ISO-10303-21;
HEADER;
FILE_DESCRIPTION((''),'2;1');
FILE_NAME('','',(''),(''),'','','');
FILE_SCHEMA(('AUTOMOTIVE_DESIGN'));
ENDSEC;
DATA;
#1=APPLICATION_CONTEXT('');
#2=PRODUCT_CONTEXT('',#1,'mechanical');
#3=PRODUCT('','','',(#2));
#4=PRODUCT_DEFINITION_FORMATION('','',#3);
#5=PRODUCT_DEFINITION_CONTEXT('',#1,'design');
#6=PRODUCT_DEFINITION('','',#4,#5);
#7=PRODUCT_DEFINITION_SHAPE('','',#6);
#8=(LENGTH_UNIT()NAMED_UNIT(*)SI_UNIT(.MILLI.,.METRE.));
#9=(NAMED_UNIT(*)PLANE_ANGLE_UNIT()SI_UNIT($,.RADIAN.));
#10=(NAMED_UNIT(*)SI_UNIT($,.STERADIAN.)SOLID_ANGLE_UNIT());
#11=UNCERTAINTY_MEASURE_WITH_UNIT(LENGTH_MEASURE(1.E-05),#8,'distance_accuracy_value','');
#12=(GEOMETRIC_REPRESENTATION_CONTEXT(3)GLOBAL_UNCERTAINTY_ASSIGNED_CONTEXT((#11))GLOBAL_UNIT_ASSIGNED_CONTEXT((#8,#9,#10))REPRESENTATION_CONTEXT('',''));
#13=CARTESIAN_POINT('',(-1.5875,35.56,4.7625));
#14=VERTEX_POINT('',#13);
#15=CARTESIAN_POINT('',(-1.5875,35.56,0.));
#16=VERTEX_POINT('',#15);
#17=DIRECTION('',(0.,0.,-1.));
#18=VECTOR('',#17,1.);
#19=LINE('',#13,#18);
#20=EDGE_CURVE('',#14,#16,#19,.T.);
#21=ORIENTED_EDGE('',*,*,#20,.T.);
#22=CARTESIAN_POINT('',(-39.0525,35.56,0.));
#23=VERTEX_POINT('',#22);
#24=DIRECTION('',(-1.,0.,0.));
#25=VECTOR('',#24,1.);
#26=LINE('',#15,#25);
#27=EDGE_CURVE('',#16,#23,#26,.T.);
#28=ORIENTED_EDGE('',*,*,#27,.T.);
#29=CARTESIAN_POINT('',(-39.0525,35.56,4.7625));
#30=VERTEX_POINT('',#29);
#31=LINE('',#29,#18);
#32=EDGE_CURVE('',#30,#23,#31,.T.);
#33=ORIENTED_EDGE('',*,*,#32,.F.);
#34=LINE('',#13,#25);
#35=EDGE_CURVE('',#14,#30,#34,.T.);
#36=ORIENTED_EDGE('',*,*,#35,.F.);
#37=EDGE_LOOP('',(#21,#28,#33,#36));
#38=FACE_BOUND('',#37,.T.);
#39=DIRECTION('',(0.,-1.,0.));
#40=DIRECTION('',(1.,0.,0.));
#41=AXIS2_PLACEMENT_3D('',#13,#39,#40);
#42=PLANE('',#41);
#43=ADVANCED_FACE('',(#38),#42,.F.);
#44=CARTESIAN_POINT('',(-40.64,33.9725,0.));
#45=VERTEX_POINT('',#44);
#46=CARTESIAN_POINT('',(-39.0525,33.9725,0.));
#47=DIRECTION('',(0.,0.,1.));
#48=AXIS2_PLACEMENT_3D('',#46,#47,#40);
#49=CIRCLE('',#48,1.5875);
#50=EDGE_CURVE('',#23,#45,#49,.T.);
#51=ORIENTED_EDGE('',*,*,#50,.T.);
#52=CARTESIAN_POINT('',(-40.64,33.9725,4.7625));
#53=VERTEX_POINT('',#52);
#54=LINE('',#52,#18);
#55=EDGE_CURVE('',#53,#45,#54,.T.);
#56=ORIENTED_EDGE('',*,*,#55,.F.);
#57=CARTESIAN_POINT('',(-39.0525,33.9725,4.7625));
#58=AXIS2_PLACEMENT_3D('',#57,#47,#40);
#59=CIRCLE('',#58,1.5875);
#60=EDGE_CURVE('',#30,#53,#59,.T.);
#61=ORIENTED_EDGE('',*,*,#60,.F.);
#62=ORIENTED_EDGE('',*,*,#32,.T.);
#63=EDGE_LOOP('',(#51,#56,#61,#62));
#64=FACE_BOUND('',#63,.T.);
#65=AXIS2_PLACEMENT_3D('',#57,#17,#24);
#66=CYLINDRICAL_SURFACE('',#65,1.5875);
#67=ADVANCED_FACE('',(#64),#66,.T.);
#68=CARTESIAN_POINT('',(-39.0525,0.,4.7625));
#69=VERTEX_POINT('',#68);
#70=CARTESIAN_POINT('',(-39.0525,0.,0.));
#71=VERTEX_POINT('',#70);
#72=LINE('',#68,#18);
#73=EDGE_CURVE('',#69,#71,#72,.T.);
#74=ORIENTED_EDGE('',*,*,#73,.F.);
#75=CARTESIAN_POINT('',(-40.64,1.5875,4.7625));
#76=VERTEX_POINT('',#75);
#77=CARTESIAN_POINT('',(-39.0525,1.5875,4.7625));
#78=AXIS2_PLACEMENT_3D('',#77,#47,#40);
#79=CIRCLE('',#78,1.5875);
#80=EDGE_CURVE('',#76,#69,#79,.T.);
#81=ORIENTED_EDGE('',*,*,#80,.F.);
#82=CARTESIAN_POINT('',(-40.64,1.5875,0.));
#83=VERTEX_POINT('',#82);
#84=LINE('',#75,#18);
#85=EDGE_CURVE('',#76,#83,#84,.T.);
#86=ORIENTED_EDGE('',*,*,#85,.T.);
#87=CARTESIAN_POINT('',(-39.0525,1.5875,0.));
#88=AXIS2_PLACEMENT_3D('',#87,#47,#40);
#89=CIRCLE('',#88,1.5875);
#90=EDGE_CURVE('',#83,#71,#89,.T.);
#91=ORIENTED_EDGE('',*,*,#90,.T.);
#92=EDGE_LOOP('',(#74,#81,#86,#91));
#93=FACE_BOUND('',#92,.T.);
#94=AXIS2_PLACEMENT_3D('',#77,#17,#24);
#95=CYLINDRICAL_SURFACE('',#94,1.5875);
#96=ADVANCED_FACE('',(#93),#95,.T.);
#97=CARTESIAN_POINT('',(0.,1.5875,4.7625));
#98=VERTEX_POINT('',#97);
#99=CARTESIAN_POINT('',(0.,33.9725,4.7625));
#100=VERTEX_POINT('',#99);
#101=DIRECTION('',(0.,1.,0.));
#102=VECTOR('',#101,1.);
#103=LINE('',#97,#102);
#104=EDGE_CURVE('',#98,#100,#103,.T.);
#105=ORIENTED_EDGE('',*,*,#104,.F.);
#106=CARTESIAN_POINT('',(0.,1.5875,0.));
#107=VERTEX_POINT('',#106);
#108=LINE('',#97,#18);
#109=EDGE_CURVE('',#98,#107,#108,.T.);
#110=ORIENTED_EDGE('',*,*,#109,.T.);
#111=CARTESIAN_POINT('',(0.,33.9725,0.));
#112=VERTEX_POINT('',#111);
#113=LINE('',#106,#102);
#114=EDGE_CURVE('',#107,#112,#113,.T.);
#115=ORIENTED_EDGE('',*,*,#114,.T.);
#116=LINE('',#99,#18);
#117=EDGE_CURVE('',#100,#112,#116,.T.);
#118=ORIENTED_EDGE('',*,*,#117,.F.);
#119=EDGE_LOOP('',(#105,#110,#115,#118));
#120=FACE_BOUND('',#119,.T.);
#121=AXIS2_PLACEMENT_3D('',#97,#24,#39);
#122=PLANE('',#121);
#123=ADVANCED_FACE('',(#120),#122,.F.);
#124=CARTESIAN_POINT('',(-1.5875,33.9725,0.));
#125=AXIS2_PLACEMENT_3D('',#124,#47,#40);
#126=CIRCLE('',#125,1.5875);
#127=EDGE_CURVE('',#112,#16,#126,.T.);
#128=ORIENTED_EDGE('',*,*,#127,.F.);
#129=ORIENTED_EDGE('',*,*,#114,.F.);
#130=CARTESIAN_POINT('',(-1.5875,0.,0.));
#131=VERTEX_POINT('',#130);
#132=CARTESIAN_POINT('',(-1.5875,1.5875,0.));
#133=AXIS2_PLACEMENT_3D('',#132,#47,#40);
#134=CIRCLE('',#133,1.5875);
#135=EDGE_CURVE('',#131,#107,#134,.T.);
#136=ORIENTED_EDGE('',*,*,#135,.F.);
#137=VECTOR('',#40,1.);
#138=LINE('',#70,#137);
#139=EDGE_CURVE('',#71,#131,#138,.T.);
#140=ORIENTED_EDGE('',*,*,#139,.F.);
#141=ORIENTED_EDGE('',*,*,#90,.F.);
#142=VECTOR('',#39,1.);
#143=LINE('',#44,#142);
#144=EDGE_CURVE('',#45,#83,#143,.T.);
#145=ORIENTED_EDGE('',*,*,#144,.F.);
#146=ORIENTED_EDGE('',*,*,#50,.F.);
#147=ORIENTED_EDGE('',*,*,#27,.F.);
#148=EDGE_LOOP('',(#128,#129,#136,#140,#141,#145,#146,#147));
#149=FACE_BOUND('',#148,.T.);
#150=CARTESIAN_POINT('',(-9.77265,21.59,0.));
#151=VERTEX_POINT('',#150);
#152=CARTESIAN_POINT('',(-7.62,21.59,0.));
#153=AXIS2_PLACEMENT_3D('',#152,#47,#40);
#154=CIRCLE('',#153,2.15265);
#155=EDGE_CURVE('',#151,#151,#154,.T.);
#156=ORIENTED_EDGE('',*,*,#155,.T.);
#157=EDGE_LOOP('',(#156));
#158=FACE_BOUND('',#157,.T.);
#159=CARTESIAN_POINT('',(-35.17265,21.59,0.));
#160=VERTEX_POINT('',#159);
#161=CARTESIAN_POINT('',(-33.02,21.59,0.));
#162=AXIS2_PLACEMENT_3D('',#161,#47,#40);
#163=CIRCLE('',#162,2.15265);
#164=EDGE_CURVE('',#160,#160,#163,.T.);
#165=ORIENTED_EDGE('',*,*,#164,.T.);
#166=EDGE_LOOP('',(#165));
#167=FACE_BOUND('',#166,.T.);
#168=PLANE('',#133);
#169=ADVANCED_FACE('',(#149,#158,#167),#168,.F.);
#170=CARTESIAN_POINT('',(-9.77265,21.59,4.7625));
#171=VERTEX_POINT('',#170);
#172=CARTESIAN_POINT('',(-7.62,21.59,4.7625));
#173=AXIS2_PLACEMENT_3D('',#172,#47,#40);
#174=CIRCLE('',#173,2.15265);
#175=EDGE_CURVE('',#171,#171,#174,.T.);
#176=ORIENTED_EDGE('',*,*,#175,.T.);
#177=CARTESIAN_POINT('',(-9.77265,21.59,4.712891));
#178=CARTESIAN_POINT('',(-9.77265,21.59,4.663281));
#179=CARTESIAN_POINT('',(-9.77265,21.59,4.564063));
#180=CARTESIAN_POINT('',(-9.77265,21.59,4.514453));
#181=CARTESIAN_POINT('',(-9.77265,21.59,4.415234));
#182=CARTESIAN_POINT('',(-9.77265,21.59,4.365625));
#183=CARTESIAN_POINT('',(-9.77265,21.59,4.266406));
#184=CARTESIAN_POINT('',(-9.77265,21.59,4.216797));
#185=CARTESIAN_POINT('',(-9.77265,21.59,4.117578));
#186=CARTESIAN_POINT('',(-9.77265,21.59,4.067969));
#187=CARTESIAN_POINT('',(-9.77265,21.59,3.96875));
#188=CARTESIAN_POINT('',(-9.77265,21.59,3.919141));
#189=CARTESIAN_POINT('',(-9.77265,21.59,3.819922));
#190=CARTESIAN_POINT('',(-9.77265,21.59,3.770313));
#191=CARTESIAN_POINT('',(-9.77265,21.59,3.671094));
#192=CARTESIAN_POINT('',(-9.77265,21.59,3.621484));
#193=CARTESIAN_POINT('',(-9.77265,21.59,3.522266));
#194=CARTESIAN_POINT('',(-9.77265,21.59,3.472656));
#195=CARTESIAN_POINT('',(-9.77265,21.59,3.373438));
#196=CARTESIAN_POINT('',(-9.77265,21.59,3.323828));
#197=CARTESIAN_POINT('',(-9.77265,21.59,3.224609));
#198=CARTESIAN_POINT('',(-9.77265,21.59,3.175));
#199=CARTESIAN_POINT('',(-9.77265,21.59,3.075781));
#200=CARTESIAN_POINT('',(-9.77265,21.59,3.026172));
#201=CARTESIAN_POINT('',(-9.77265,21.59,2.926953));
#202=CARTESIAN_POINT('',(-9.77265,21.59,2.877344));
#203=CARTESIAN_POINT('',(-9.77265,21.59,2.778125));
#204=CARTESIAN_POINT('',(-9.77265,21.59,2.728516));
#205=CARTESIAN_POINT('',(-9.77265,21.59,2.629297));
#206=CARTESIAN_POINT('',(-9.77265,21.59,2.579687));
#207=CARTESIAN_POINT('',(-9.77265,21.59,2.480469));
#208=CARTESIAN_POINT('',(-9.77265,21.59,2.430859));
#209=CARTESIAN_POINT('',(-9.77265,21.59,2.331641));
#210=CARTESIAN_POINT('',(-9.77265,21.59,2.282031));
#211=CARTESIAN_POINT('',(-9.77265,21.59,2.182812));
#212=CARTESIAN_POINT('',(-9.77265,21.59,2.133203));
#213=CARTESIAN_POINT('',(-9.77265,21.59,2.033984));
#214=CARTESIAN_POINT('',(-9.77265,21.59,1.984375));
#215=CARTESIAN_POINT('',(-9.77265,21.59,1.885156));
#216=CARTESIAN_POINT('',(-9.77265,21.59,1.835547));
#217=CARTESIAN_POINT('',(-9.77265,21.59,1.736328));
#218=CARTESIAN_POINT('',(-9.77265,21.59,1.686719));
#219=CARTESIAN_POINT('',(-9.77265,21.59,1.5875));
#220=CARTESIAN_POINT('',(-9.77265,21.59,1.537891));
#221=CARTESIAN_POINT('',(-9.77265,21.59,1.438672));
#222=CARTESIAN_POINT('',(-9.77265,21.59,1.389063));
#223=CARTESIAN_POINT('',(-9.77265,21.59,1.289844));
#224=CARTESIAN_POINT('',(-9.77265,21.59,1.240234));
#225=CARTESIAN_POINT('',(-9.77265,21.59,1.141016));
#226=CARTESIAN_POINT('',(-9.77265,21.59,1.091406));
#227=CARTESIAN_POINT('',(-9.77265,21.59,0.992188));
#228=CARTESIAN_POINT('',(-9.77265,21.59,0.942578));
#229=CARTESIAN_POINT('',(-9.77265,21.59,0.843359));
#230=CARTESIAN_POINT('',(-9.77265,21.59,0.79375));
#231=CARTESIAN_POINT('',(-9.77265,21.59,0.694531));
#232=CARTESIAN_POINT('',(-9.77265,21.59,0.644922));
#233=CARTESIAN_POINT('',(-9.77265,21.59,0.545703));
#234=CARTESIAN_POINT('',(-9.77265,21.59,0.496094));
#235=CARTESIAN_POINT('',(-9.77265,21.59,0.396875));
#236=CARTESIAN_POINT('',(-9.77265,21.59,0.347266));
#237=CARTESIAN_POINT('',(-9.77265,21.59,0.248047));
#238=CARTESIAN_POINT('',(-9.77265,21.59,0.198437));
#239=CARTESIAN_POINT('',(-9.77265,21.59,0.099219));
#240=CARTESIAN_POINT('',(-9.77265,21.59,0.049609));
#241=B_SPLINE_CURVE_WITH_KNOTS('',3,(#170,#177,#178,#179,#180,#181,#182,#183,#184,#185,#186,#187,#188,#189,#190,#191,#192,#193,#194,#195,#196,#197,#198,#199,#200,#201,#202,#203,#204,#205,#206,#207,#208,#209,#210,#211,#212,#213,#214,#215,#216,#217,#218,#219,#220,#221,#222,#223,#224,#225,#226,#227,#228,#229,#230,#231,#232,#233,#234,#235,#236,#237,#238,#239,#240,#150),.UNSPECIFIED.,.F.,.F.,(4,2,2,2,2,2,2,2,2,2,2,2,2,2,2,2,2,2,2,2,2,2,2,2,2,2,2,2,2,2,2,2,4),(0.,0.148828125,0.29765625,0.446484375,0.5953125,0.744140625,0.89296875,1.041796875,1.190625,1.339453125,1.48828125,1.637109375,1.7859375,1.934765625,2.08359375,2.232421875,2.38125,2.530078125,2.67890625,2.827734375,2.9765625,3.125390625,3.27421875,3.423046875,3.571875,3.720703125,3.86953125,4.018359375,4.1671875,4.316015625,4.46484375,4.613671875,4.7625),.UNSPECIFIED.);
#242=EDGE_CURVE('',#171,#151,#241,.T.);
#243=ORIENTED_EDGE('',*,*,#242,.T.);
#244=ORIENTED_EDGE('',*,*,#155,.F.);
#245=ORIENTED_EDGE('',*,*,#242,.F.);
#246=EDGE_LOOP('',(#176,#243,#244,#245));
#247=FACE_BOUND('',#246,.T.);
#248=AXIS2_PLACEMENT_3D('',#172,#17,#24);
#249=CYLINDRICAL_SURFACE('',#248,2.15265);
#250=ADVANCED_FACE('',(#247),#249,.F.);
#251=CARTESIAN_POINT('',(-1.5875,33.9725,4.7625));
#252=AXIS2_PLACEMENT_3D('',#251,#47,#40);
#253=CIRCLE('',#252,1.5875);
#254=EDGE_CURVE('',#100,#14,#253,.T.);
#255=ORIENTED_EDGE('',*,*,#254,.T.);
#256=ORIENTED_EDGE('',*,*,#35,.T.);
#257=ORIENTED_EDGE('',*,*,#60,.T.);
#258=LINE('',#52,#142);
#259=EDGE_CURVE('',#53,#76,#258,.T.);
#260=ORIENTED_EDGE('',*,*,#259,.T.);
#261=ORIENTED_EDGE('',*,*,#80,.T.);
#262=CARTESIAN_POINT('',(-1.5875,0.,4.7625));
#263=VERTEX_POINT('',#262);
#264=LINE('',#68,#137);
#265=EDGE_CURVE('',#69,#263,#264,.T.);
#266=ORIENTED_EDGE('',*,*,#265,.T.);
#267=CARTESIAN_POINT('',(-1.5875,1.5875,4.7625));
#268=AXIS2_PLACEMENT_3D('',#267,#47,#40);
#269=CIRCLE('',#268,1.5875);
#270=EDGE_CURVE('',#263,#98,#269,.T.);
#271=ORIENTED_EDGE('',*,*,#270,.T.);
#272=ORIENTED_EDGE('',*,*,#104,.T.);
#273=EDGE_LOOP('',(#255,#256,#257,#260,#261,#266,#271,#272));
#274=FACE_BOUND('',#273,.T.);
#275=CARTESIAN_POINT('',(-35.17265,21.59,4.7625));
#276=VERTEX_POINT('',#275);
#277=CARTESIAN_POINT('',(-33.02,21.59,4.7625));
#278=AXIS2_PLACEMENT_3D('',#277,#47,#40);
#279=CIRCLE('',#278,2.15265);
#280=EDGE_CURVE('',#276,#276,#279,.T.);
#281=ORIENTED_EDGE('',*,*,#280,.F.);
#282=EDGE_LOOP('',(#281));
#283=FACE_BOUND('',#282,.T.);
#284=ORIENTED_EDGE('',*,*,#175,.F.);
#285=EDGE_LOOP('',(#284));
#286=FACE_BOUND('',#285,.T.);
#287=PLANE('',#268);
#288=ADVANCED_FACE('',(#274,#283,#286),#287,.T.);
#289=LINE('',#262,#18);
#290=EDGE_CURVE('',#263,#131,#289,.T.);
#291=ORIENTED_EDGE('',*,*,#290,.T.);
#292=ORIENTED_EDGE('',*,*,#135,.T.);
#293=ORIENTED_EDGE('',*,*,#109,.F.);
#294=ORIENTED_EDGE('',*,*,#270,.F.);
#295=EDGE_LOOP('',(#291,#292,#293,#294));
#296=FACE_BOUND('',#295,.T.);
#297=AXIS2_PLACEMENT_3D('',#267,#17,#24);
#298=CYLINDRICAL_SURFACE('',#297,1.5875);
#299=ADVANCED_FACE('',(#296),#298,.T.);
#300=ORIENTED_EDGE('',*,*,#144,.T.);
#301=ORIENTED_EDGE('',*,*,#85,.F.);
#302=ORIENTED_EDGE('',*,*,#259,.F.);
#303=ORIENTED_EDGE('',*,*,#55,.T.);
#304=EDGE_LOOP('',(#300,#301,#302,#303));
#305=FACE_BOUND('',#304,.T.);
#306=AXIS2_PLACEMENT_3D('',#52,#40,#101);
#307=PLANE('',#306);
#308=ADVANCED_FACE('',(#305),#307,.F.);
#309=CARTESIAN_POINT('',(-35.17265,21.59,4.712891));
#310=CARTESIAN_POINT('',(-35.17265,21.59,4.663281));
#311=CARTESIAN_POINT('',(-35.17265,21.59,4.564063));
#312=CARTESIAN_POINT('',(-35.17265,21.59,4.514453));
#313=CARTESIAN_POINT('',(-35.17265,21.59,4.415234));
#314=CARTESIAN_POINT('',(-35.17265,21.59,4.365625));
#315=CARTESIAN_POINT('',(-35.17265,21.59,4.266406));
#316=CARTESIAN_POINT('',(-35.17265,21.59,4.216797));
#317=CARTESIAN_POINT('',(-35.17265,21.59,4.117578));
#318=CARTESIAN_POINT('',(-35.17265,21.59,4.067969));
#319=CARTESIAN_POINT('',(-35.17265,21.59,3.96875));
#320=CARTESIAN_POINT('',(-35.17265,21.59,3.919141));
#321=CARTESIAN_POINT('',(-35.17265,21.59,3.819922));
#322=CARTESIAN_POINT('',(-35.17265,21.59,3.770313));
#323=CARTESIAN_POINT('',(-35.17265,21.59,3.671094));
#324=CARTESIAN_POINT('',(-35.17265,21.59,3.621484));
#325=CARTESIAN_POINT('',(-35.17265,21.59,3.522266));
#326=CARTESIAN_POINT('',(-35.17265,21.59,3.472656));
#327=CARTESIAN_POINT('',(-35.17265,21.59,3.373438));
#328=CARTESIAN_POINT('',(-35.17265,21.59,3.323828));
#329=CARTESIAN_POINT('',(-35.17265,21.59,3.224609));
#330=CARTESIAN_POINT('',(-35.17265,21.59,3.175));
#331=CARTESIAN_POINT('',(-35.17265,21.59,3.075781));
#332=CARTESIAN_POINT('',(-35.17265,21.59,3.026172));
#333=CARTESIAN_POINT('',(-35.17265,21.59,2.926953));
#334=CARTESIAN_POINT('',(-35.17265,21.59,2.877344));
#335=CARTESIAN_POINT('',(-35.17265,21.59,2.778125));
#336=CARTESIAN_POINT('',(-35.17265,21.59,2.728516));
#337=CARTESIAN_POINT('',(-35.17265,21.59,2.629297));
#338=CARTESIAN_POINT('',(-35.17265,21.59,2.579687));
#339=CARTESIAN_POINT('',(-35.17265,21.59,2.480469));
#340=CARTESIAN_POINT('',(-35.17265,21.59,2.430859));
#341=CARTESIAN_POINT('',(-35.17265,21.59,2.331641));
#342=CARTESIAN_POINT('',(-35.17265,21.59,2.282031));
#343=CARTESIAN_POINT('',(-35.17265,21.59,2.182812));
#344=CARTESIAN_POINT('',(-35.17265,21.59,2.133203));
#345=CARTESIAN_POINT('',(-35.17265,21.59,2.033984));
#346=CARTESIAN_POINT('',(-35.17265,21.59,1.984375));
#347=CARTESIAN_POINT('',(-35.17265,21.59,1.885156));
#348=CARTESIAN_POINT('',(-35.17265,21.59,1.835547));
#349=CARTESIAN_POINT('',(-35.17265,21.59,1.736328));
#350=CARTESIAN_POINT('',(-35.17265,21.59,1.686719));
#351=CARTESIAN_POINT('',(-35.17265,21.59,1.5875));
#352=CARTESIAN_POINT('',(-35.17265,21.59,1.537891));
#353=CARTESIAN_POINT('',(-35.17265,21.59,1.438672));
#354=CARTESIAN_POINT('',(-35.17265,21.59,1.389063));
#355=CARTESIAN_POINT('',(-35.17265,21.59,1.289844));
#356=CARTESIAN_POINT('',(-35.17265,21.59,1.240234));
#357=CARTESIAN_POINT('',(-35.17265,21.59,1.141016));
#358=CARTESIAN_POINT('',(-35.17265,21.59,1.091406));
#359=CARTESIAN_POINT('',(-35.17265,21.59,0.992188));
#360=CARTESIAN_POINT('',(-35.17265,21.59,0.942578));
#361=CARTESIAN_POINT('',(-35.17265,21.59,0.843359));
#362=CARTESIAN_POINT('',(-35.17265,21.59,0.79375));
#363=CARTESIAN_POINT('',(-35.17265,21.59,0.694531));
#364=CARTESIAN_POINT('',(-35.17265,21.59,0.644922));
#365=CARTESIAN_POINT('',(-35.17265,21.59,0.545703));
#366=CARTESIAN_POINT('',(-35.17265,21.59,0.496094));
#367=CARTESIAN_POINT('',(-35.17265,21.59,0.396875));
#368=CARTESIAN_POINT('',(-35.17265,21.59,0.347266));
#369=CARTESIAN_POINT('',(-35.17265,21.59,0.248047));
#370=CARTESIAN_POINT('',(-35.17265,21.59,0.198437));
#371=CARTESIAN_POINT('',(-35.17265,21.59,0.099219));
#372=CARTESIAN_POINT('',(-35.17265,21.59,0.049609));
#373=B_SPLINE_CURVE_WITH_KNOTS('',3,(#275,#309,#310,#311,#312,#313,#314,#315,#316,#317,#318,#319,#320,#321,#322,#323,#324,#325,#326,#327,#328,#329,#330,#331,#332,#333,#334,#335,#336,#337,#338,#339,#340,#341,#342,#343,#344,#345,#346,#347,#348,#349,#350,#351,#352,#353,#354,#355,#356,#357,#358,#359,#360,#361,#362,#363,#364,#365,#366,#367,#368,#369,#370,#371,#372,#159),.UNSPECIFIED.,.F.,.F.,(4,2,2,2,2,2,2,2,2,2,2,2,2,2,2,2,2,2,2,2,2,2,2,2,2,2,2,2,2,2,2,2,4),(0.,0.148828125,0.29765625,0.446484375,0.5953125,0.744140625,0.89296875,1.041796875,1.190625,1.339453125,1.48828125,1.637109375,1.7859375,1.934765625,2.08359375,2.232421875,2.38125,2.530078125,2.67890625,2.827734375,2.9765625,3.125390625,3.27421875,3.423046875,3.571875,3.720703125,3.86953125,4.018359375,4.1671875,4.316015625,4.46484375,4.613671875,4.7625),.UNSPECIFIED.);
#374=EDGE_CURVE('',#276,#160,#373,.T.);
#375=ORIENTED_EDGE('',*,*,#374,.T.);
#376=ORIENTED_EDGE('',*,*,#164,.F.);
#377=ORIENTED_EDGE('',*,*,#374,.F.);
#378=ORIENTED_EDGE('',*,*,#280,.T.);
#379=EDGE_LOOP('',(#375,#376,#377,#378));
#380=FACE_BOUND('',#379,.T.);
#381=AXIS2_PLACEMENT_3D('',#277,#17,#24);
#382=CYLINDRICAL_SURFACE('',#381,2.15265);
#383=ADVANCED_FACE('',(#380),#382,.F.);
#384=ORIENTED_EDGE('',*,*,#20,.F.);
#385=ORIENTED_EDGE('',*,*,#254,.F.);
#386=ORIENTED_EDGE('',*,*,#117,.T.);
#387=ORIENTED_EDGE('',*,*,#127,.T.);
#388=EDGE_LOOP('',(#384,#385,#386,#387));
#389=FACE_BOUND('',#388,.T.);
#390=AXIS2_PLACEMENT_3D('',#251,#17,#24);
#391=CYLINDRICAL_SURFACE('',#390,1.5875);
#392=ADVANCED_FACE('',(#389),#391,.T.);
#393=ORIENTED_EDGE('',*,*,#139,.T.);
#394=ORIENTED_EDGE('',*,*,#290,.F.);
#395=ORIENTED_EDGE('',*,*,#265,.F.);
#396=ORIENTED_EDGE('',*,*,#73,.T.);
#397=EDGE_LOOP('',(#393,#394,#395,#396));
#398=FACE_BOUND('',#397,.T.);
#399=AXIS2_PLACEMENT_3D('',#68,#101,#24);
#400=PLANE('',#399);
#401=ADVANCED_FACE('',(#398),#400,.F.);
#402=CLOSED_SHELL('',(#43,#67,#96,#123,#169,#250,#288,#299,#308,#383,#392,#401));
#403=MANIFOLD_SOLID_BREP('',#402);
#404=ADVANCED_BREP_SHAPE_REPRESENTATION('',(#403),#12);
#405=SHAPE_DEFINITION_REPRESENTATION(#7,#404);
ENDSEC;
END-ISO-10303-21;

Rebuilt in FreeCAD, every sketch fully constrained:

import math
import FreeCAD as App
import Part
import Sketcher
from FreeCAD import Vector
Q = App.Units.Quantity

doc = App.newDocument("Part")
params = doc.addObject("Spreadsheet::Sheet", "Params")
for row, (alias, value) in enumerate([
    ("sketch1_radius", "0.0625 in"),
    ("pad1_length", "0.1875 in"),
], start=1):
    params.set(f"A{row}", alias)
    params.set(f"B{row}", "=" + value)
    params.setAlias(f"B{row}", alias)

body = doc.addObject("PartDesign::Body", "Body")

# Sketch on XY plane
sketch1 = body.newObject("Sketcher::SketchObject", "Sketch")
sketch1.AttachmentSupport = (doc.getObject("XY_Plane"), [""])
sketch1.MapMode = "FlatFace"
sketch1.addGeometry([
    Part.LineSegment(Vector(0, 1.6, 0), Vector(0, 34, 0)),  # 0
    Part.ArcOfCircle(Part.Circle(Vector(-1.6, 34, 0), Vector(0, 0, 1), 1.6), math.radians(0), math.radians(90)),  # 1
    Part.LineSegment(Vector(-1.6, 35.6, 0), Vector(-39.1, 35.6, 0)),  # 2
    Part.ArcOfCircle(Part.Circle(Vector(-39.1, 34, 0), Vector(0, 0, 1), 1.6), math.radians(90), math.radians(180)),  # 3
    Part.LineSegment(Vector(-40.6, 34, 0), Vector(-40.6, 1.6, 0)),  # 4
    Part.ArcOfCircle(Part.Circle(Vector(-39.1, 1.6, 0), Vector(0, 0, 1), 1.6), math.radians(180), math.radians(270)),  # 5
    Part.LineSegment(Vector(-39.1, 0, 0), Vector(-1.6, 0, 0)),  # 6
    Part.ArcOfCircle(Part.Circle(Vector(-1.6, 1.6, 0), Vector(0, 0, 1), 1.6), math.radians(-90), math.radians(0)),  # 7
    Part.Circle(Vector(-33, 21.6, 0), Vector(0, 0, 1), 2.2),  # 8
    Part.Circle(Vector(-7.6, 21.6, 0), Vector(0, 0, 1), 2.2),  # 9
], False)
sketch1.addConstraint([
    Sketcher.Constraint("Tangent", 0, 2, 1, 1),
    Sketcher.Constraint("Tangent", 1, 2, 2, 1),
    Sketcher.Constraint("Tangent", 2, 2, 3, 1),
    Sketcher.Constraint("Tangent", 3, 2, 4, 1),
    Sketcher.Constraint("Tangent", 4, 2, 5, 1),
    Sketcher.Constraint("Tangent", 5, 2, 6, 1),
    Sketcher.Constraint("Tangent", 6, 2, 7, 1),
    Sketcher.Constraint("Tangent", 7, 2, 0, 1),
    Sketcher.Constraint("Vertical", 0),
    Sketcher.Constraint("Horizontal", 2),
    Sketcher.Constraint("Vertical", 4),
    Sketcher.Constraint("Horizontal", 6),
    Sketcher.Constraint("Equal", 1, 3),
    Sketcher.Constraint("Equal", 3, 5),
    Sketcher.Constraint("Equal", 5, 7),
    Sketcher.Constraint("Equal", 8, 9),
    Sketcher.Constraint("PointOnObject", 0, 2, -2),
    Sketcher.Constraint("PointOnObject", 5, 2, -1),
    Sketcher.Constraint("Horizontal", 8, 3, 9, 3),
    Sketcher.Constraint("Radius", 1, Q("0.0625 in")),
    Sketcher.Constraint("DistanceX", 8, 3, 9, 3, Q("1 in")),
    Sketcher.Constraint("Diameter", 8, Q("0.1695 in")),
    Sketcher.Constraint("DistanceX", 8, 3, -1, 1, Q("1.3 in")),
    Sketcher.Constraint("DistanceY", -1, 1, 1, 2, Q("1.4 in")),
    Sketcher.Constraint("DistanceX", 3, 2, -1, 1, Q("1.6 in")),
    Sketcher.Constraint("DistanceY", -1, 1, 8, 3, Q("0.85 in")),
])
sketch1.setExpression("Constraints[19]", "Params.sketch1_radius")
pad1 = body.newObject("PartDesign::Pad", "Pad")
pad1.Profile = sketch1
pad1.setExpression("Length", "Params.pad1_length")

doc.recompute()
